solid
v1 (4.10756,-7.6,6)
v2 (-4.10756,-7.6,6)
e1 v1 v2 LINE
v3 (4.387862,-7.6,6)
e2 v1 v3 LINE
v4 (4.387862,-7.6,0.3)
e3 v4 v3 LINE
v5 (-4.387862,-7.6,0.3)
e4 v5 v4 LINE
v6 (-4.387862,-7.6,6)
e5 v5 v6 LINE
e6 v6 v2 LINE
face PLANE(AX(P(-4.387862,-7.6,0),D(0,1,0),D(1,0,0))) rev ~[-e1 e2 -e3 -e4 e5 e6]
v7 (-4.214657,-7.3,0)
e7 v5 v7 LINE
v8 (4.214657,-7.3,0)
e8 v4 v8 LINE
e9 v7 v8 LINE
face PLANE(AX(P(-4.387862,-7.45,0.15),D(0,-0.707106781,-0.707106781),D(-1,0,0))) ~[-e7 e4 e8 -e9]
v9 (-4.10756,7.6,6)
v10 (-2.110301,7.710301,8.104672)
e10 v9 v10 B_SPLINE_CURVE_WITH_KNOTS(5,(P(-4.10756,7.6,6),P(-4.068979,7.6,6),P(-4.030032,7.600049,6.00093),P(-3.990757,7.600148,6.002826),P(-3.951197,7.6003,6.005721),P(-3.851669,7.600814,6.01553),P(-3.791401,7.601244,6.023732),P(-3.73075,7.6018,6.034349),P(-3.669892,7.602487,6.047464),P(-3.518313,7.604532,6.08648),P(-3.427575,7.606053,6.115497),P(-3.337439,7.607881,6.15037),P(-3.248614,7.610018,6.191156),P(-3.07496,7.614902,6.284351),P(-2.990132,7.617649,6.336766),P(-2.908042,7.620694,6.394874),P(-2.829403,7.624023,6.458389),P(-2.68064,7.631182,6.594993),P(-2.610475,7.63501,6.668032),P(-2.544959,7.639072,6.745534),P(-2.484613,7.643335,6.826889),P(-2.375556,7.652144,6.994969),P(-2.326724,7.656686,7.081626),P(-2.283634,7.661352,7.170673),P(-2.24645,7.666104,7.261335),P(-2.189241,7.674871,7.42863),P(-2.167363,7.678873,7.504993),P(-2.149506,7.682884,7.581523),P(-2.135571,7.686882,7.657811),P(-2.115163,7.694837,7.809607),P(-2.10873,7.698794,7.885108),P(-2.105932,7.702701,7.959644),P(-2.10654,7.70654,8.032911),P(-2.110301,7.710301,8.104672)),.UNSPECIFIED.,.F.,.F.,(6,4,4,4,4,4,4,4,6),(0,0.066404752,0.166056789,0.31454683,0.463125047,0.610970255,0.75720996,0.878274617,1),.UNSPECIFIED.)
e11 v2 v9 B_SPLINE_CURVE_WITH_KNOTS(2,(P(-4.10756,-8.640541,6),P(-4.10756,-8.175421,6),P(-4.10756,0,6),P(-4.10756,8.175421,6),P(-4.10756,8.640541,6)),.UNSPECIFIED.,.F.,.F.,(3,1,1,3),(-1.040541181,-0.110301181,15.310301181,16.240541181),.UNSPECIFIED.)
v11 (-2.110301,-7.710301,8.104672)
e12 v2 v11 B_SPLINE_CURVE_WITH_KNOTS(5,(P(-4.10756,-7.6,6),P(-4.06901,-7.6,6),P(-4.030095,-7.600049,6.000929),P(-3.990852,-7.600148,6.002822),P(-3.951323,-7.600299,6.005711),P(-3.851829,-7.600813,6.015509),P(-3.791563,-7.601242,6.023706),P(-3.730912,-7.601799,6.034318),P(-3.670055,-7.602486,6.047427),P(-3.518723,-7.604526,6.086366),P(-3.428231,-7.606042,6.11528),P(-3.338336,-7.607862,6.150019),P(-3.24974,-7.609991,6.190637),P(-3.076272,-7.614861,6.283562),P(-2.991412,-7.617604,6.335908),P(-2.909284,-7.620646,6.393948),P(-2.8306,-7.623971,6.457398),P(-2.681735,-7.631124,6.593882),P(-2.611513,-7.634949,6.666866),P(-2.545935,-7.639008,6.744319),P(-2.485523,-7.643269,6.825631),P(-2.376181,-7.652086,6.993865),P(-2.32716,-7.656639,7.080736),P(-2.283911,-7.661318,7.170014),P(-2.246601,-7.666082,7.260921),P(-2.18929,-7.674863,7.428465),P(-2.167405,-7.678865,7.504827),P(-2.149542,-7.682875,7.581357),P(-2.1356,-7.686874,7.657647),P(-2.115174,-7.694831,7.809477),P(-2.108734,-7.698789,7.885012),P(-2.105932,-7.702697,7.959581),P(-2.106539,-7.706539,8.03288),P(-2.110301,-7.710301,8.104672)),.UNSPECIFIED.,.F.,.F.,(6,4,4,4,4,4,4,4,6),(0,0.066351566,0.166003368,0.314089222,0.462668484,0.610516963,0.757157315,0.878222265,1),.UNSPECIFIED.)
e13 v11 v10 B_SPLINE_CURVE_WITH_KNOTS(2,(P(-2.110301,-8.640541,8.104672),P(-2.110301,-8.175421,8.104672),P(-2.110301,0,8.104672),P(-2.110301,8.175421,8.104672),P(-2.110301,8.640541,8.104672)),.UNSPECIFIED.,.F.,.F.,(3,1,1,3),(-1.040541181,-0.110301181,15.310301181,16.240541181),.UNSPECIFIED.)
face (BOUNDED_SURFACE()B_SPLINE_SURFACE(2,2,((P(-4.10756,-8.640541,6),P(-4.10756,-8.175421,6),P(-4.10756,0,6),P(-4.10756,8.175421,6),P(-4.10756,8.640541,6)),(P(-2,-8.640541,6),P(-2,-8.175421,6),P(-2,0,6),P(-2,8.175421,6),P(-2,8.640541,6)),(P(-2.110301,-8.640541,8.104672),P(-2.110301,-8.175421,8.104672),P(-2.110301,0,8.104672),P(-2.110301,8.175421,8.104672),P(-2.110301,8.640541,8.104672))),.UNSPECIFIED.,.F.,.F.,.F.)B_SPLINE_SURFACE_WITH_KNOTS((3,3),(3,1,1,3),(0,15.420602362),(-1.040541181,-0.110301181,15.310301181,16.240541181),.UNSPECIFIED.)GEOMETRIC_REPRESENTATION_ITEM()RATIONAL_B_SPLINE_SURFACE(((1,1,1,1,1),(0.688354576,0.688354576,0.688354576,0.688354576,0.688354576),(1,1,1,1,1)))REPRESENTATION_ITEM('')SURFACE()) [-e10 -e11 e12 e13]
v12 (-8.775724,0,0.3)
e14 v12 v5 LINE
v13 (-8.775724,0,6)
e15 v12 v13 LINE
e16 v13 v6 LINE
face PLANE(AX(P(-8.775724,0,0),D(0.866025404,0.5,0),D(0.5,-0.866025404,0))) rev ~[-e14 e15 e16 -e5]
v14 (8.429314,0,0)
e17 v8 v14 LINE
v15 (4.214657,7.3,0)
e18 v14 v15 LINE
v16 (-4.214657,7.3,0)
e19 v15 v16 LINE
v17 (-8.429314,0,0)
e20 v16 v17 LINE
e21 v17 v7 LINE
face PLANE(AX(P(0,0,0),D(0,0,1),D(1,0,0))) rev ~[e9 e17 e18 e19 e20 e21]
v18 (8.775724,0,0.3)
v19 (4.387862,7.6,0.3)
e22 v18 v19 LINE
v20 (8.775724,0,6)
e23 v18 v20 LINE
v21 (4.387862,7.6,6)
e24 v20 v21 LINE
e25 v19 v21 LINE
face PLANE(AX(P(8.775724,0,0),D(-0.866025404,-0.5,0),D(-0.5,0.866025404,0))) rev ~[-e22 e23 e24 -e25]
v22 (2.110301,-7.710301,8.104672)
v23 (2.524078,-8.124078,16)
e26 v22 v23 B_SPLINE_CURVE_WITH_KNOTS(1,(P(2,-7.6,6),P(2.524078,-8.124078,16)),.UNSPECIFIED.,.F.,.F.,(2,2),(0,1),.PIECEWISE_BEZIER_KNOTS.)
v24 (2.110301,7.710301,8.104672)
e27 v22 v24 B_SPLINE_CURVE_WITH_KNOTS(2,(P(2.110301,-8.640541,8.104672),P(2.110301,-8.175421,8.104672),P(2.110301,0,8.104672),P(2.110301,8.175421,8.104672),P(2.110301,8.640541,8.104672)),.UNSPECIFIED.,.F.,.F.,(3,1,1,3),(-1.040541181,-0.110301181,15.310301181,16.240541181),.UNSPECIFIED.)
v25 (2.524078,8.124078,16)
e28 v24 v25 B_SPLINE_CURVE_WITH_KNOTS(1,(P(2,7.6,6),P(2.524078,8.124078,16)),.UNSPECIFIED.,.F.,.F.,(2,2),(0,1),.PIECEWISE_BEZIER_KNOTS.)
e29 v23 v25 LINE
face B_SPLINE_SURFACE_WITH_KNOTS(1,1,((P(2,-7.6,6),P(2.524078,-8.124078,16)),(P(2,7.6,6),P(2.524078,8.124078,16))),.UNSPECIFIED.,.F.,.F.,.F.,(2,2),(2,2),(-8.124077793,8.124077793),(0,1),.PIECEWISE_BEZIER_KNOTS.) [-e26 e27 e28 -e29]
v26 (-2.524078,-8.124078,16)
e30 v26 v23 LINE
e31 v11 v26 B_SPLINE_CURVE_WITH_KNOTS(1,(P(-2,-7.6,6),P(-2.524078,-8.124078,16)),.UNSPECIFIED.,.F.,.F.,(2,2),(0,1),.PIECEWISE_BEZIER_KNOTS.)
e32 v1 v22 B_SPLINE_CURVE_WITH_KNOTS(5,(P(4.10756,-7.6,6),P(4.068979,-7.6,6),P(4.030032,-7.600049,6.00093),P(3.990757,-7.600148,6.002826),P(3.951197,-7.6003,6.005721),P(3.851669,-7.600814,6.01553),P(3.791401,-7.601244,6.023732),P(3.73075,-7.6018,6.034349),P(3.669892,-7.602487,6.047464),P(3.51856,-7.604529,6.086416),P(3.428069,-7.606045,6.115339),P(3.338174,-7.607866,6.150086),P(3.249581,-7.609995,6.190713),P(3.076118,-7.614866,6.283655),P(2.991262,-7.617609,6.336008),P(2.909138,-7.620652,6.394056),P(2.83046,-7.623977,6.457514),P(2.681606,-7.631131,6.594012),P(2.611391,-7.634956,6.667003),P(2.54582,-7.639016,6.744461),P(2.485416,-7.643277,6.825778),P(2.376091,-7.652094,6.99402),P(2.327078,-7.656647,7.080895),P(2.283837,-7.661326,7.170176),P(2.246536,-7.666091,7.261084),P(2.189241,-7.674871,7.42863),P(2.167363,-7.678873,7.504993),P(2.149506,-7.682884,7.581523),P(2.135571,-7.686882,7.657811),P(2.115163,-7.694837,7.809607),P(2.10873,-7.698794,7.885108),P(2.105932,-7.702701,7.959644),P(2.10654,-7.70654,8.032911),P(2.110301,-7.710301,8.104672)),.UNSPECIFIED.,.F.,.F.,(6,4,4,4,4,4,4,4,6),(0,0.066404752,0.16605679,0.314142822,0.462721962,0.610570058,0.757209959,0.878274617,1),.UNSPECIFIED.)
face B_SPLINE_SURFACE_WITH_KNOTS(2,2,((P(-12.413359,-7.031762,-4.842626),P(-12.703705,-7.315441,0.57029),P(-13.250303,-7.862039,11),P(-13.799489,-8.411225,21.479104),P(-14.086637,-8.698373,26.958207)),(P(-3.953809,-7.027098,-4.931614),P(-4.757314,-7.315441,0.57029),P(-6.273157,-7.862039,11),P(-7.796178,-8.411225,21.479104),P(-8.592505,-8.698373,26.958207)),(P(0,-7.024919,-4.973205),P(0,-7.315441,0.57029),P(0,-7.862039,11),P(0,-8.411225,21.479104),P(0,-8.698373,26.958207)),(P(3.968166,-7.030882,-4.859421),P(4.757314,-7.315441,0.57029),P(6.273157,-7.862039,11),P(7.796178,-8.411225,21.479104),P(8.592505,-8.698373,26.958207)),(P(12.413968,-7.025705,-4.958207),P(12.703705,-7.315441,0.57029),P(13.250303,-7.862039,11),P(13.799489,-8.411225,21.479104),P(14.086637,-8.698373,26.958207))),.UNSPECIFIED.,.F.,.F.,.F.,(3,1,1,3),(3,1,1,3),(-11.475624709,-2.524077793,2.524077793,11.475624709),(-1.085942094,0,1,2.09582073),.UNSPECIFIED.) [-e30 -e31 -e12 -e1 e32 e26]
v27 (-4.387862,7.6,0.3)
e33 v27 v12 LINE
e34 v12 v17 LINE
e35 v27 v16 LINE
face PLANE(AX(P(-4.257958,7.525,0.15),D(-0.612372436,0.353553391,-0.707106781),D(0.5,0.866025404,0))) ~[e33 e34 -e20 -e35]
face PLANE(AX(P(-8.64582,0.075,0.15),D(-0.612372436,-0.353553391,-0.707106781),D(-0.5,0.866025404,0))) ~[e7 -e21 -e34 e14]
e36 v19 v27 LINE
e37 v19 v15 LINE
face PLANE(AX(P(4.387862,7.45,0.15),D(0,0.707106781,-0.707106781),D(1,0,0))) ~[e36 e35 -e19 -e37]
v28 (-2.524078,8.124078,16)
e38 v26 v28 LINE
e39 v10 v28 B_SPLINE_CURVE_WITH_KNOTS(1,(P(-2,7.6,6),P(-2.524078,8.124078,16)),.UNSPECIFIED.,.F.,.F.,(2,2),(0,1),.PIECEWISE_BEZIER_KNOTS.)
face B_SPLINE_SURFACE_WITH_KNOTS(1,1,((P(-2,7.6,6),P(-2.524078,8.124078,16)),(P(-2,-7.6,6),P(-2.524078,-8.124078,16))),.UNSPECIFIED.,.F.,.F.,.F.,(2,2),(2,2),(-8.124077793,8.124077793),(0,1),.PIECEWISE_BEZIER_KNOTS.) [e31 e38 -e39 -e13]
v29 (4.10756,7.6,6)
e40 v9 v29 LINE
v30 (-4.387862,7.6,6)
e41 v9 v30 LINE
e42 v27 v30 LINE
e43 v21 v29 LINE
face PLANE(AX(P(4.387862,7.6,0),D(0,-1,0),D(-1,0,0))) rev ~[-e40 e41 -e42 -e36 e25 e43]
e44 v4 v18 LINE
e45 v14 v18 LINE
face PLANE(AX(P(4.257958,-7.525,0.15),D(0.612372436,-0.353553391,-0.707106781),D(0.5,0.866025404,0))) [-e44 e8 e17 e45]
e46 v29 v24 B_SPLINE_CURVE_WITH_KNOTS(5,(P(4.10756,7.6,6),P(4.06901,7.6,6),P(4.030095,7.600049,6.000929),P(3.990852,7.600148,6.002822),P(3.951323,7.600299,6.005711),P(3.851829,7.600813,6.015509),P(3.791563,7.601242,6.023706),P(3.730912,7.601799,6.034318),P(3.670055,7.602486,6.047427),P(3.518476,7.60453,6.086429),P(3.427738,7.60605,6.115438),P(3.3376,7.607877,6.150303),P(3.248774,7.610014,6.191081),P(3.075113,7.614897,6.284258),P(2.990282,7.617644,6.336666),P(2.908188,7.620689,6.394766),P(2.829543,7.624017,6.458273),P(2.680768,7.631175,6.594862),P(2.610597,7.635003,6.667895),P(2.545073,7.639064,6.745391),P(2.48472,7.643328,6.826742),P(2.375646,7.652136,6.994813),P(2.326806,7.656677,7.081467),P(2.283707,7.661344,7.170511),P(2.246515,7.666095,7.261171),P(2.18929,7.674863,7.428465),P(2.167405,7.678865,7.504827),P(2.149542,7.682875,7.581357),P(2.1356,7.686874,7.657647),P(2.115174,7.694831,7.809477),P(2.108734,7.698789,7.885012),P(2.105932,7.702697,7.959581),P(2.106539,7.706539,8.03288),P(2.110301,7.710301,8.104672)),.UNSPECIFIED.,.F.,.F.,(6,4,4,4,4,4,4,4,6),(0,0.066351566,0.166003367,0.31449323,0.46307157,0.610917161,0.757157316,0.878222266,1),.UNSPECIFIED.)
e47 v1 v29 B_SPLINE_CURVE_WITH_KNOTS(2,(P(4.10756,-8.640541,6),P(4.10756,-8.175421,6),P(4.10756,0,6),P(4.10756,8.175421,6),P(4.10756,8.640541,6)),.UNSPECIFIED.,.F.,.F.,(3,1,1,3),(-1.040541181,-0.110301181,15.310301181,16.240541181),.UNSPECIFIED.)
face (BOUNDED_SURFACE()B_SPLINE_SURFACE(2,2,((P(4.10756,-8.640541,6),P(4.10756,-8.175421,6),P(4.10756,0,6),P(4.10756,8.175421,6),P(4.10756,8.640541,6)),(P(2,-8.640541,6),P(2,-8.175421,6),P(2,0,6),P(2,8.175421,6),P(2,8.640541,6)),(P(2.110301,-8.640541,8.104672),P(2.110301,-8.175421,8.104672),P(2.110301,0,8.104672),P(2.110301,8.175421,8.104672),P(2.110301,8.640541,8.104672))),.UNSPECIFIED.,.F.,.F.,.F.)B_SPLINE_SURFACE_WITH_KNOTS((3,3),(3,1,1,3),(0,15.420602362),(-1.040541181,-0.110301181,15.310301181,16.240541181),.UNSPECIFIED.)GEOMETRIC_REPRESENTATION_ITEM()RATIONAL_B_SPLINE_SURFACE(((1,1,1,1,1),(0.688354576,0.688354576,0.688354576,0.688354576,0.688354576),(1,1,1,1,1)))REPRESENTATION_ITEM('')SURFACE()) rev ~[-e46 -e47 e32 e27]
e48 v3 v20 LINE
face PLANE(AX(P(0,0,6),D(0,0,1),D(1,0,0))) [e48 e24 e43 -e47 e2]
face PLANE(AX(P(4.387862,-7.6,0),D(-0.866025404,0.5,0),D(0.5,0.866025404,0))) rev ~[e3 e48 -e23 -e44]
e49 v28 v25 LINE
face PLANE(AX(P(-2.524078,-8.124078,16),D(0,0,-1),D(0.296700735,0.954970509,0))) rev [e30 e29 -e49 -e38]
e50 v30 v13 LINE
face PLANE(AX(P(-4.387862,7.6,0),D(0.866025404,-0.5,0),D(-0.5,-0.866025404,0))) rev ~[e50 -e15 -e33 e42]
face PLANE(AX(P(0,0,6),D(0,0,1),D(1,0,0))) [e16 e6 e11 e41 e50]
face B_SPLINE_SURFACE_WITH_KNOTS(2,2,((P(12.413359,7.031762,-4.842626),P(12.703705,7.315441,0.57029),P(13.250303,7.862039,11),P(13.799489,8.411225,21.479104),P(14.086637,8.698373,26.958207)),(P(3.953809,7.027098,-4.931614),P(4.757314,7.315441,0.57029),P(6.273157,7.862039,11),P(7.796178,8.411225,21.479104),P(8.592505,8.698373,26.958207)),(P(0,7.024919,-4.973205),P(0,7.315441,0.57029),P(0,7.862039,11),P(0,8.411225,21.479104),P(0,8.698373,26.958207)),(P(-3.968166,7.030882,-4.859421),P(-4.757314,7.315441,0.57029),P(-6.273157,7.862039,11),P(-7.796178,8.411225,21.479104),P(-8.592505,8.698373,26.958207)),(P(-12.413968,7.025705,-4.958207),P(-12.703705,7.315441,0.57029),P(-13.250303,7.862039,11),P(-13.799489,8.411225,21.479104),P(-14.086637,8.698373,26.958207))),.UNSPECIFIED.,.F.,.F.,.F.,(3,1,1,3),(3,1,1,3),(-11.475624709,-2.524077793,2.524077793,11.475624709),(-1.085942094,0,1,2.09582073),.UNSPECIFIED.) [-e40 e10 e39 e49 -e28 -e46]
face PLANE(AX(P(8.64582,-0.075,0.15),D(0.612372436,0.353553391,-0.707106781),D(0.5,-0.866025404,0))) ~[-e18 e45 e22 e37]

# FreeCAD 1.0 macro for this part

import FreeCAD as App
import Part
import Sketcher
Q = App.Units.Quantity


def edges_at(feature, points):
    """Names of the edges that pass closest to the given points."""
    edges = feature.Shape.Edges
    near = lambda p: min(range(len(edges)), key=lambda i: edges[i].distToShape(Part.Vertex(*p))[0])
    return sorted({f"Edge{near(p) + 1}" for p in points})


def add_polygon(sketch, points):
    """Adds a closed chain of lines whose ends are joined by coincident constraints."""
    first, n = sketch.GeometryCount, len(points)
    for a, b in zip(points, points[1:] + points[:1]):
        sketch.addGeometry(Part.LineSegment(App.Vector(*a, 0), App.Vector(*b, 0)), False)
    for i in range(n):
        sketch.addConstraint(Sketcher.Constraint("Coincident", first + i, 2, first + (i + 1) % n, 1))

doc = App.newDocument("Part")
body = doc.addObject("PartDesign::Body", "Body")

sketch1 = body.newObject("Sketcher::SketchObject", "Sketch")
sketch1.AttachmentSupport = (doc.getObject("XY_Plane"), [""])
sketch1.MapMode = "FlatFace"
add_polygon(sketch1, [(4, -8), (9, 0), (4, 8), (-4, 8), (-9, 0), (-4, -8)])
sketch1.addConstraint([
    Sketcher.Constraint("Horizontal", 2),
    Sketcher.Constraint("Horizontal", 5),
    Sketcher.Constraint("Symmetric", 0, 2, 3, 2, -1, 1),
    Sketcher.Constraint("Symmetric", 1, 2, 4, 2, -1, 1),
    Sketcher.Constraint("PointOnObject", 0, 2, -1),
    Sketcher.Constraint("Parallel", 0, 3),
    Sketcher.Constraint("Vertical", 2, 2, 4, 2),
    Sketcher.Constraint("Angle", 0, Q("60 deg")),
    Sketcher.Constraint("DistanceY", -1, 1, 1, 2, 7.6),
    Sketcher.Constraint("DistanceX", 2, 2, 2, 1, 8.775724),
])
pad1 = body.newObject("PartDesign::Pad", "Pad")
pad1.Profile = sketch1
pad1.Length = 6

sketch2 = body.newObject("Sketcher::SketchObject", "Sketch001")
sketch2.AttachmentSupport = (doc.getObject("XY_Plane"), [""])
sketch2.MapMode = "FlatFace"
sketch2.AttachmentOffset = App.Placement(App.Vector(0, 0, 6), App.Rotation())
add_polygon(sketch2, [(-2, 7.6), (-2, -7.6), (2, -7.6), (2, 7.6)])
sketch2.addConstraint([
    Sketcher.Constraint("Vertical", 0),
    Sketcher.Constraint("Horizontal", 1),
    Sketcher.Constraint("Vertical", 2),
    Sketcher.Constraint("Horizontal", 3),
    Sketcher.Constraint("Symmetric", 0, 2, 2, 2, -1, 1),
    Sketcher.Constraint("DistanceX", 1, 1, 1, 2, 4.0),
    Sketcher.Constraint("DistanceY", 0, 2, 0, 1, 15.2),
])
pad2 = body.newObject("PartDesign::Pad", "Pad001")
pad2.Profile = sketch2
pad2.Length = 10
pad2.TaperAngle = 3
doc.recompute()

fillet = body.newObject("PartDesign::Fillet", "Fillet")
fillet.Base = (pad2, edges_at(pad2, [(2, 0, 6), (-2, 0, 6)]))
fillet.Radius = 2
doc.recompute()

chamfer = body.newObject("PartDesign::Chamfer", "Chamfer")
chamfer.Base = (fillet, edges_at(fillet, [
    (-6.582, -3.8, 0),
    (0, -7.6, 0),
    (6.582, -3.8, 0),
    (6.582, 3.8, 0),
    (0, 7.6, 0),
    (-6.582, 3.8, 0),
]))
chamfer.Size = 0.3

doc.recompute()
